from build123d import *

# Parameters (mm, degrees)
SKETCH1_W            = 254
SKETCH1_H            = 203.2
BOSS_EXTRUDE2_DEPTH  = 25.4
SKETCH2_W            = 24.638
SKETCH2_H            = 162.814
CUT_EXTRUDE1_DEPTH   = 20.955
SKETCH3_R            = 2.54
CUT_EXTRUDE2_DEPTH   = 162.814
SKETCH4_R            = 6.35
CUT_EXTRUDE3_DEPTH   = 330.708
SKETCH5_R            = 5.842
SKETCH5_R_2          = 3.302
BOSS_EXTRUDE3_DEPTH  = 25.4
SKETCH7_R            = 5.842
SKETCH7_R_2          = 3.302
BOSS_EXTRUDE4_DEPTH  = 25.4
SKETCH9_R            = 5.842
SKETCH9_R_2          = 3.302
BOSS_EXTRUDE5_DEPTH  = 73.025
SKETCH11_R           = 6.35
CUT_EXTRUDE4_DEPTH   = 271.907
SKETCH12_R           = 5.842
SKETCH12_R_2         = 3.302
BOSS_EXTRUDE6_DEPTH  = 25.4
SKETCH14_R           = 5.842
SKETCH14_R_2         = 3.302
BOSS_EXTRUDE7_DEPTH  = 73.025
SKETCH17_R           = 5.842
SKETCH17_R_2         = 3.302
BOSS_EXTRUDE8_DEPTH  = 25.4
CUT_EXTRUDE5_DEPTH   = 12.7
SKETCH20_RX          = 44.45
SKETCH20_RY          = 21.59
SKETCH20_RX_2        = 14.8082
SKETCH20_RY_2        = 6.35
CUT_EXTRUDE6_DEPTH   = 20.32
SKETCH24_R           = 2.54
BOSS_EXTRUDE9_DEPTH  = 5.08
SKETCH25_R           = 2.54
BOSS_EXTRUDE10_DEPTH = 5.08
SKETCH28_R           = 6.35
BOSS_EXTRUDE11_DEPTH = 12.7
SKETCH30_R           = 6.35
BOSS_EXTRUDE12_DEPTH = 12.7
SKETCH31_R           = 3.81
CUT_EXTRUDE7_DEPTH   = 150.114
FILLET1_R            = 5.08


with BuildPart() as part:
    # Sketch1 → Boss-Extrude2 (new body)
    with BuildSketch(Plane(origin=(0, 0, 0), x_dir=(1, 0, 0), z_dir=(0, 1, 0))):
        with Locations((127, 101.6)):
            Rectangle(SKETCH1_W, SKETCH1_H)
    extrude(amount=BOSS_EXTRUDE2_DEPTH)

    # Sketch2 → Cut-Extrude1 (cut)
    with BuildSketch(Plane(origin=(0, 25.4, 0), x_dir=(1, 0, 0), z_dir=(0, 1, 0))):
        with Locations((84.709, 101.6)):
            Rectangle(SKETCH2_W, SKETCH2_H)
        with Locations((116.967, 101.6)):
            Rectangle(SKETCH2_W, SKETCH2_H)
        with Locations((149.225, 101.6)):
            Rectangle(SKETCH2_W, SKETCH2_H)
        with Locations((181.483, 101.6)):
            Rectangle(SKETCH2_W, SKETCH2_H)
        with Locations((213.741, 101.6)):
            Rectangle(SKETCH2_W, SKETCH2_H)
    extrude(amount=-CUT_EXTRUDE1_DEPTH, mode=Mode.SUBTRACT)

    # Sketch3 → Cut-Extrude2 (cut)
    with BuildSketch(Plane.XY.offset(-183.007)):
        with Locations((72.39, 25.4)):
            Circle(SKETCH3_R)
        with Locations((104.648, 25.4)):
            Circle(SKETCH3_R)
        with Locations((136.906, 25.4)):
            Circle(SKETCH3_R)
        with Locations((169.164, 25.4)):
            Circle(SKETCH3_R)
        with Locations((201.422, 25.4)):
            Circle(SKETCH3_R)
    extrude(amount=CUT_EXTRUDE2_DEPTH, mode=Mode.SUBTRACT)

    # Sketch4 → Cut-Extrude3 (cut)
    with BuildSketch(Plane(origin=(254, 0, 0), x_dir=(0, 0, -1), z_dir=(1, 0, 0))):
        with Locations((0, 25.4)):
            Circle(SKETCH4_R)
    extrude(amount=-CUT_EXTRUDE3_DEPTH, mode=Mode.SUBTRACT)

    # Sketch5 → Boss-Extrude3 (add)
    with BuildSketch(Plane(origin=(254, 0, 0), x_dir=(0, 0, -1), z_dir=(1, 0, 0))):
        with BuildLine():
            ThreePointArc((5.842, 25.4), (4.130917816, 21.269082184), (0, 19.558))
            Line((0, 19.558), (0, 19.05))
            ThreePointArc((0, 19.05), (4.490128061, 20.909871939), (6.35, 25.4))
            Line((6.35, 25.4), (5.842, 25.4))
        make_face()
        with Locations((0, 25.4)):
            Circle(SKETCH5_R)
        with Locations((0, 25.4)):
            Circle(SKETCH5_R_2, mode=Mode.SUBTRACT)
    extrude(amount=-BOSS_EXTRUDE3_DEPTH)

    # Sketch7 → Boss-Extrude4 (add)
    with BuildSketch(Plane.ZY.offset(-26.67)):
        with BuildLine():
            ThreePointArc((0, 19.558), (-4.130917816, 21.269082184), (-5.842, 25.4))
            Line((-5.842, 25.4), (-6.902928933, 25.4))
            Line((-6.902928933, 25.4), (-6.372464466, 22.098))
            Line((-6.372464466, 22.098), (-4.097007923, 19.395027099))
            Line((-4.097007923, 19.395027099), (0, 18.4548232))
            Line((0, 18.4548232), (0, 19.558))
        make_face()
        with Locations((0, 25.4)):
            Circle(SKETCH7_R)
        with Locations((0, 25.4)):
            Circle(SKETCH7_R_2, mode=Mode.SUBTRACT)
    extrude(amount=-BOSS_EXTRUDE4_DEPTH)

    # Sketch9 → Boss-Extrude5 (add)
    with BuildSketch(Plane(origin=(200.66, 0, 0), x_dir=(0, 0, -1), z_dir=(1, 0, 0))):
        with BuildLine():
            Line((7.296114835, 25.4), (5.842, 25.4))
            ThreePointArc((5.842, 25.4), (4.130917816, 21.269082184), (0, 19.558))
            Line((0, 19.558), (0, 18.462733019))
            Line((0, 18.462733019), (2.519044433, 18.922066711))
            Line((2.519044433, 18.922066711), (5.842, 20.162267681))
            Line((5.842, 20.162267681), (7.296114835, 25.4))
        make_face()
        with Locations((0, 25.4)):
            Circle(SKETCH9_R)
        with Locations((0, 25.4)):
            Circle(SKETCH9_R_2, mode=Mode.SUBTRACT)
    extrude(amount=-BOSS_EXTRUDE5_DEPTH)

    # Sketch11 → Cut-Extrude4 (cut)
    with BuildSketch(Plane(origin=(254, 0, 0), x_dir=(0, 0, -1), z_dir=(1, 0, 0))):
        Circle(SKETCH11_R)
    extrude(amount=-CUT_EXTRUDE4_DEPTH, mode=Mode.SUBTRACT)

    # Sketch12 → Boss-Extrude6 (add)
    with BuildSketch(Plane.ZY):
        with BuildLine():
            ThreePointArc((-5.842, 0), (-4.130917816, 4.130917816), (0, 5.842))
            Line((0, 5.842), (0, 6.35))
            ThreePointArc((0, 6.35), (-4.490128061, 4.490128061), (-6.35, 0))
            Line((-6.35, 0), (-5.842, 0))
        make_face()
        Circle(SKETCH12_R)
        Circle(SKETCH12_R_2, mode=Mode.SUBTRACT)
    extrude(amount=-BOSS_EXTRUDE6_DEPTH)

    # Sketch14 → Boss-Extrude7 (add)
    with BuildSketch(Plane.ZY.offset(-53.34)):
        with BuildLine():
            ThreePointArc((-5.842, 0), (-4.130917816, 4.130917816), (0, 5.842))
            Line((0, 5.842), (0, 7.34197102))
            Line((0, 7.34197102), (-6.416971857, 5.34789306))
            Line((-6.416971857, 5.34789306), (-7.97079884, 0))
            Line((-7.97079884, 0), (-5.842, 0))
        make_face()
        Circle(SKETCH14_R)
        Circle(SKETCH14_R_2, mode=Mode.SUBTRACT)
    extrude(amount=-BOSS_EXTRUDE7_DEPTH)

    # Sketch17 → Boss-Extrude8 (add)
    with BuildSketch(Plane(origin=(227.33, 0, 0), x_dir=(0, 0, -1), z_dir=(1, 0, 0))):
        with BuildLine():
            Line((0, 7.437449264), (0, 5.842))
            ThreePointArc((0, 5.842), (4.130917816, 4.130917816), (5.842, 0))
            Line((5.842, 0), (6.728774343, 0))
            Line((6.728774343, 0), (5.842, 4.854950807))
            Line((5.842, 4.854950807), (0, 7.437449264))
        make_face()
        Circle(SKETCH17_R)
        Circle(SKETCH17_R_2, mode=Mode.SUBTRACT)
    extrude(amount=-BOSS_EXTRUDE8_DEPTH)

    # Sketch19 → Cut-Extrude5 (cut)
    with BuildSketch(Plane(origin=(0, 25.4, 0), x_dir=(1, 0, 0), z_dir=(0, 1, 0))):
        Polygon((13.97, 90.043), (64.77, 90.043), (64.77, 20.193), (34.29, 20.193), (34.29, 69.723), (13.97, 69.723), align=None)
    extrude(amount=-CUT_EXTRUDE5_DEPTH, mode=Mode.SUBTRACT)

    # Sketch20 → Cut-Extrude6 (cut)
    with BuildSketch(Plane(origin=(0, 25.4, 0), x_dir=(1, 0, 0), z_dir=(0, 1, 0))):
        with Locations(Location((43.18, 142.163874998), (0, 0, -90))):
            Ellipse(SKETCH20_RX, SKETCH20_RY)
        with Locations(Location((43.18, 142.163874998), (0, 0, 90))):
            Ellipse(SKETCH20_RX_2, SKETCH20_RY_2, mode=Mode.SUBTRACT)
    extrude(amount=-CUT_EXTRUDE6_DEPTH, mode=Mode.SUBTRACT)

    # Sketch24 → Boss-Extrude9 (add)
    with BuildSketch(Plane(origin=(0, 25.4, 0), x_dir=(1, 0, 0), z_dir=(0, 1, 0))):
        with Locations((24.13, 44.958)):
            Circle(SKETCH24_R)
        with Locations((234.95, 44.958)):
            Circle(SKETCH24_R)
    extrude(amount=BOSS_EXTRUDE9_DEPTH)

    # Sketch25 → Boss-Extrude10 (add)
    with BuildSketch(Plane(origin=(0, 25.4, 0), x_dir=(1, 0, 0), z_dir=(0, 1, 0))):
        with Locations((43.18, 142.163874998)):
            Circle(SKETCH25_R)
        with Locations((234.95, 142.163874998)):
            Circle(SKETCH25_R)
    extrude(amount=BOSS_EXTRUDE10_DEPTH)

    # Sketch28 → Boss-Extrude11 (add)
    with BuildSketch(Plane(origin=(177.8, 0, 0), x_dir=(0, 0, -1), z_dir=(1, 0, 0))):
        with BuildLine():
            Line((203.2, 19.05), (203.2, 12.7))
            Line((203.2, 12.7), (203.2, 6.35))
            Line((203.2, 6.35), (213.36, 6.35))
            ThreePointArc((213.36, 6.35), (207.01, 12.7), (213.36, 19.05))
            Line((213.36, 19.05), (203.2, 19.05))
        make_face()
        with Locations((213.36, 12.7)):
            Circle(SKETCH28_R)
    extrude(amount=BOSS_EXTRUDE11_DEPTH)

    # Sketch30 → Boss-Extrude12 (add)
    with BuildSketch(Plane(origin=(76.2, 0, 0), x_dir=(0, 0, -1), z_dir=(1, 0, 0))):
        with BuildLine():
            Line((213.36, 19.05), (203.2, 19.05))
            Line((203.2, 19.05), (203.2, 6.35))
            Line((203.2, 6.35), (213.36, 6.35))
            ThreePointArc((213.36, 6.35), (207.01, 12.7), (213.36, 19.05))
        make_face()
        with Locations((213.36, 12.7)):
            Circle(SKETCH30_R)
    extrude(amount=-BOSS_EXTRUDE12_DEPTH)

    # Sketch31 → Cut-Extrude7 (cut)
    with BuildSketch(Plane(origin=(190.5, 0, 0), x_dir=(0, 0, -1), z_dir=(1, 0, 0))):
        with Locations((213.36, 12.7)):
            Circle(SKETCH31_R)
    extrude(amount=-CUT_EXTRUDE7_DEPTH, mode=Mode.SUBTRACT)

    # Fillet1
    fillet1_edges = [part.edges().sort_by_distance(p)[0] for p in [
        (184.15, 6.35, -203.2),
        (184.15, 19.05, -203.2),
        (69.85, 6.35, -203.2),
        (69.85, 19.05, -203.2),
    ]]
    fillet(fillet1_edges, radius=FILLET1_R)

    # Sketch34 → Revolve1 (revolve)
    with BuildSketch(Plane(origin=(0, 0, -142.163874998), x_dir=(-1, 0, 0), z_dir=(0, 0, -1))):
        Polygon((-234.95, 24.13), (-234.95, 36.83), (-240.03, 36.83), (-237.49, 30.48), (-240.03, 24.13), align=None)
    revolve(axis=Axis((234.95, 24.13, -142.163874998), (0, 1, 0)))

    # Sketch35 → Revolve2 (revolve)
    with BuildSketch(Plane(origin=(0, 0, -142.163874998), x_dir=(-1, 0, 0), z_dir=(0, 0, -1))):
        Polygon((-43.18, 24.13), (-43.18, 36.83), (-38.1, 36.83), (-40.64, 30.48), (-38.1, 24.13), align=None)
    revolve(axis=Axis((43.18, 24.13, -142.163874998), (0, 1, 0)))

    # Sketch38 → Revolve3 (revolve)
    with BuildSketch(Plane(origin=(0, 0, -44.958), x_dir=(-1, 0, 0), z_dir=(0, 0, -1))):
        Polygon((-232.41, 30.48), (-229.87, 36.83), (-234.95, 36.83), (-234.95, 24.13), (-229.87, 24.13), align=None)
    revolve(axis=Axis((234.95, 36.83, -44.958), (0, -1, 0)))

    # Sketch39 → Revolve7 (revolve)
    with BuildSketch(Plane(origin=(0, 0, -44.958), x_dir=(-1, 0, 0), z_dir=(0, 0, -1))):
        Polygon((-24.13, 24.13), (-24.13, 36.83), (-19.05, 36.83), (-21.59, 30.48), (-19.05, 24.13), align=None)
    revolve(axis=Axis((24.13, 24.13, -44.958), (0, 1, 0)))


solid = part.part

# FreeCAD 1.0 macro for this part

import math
import FreeCAD as App
import Part
import Sketcher

V = App.Vector
Q = App.Units.Quantity


def edges_at(feature, points):
    """Names of the edges that pass closest to the given points."""
    edges = feature.Shape.Edges
    near = lambda p: min(range(len(edges)), key=lambda i: edges[i].distToShape(Part.Vertex(*p))[0])
    return sorted({f"Edge{near(p) + 1}" for p in points})

doc = App.newDocument("Part")
body = doc.addObject("PartDesign::Body", "Body")

# Sketch on XZ plane
sketch1 = doc.addObject("Sketcher::SketchObject", "Sketch")
body.addObject(sketch1)
sketch1.AttachmentSupport = (doc.XZ_Plane, [""])
sketch1.MapMode = "FlatFace"
sketch1.addGeometry([
    Part.LineSegment(V(0, -203, 0), V(0, 0, 0)),
    Part.LineSegment(V(0, 0, 0), V(254, 0, 0)),
    Part.LineSegment(V(254, 0, 0), V(254, -203, 0)),
    Part.LineSegment(V(254, -203, 0), V(0, -203, 0)),
], False)
sketch1.addConstraint([
    Sketcher.Constraint("Coincident", 0, 2, 1, 1),
    Sketcher.Constraint("Coincident", 1, 2, 2, 1),
    Sketcher.Constraint("Coincident", 2, 2, 3, 1),
    Sketcher.Constraint("Coincident", 3, 2, 0, 1),
    Sketcher.Constraint("Vertical", 0),
    Sketcher.Constraint("Horizontal", 1),
    Sketcher.Constraint("Vertical", 2),
    Sketcher.Constraint("Horizontal", 3),
    Sketcher.Constraint("Coincident", 0, 2, -1, 1),
    Sketcher.Constraint("DistanceX", 1, 1, 1, 2, Q("10 in")),
    Sketcher.Constraint("DistanceY", 0, 1, 0, 2, Q("8 in")),
])
pad1 = doc.addObject("PartDesign::Pad", "Pad")
body.addObject(pad1)
pad1.Profile = sketch1
pad1.Length = Q("1 in")
pad1.Reversed = True

# Sketch on XZ plane
sketch2 = doc.addObject("Sketcher::SketchObject", "Sketch001")
body.addObject(sketch2)
sketch2.AttachmentSupport = (doc.XZ_Plane, [""])
sketch2.MapMode = "FlatFace"
sketch2.AttachmentOffset = App.Placement(V(0, 0, -1 * 25.4), App.Rotation())
sketch2.addGeometry([
    Part.LineSegment(V(72, -183, 0), V(72, -20, 0)),  # 0
    Part.LineSegment(V(72, -20, 0), V(97, -20, 0)),  # 1
    Part.LineSegment(V(97, -20, 0), V(97, -183, 0)),  # 2
    Part.LineSegment(V(97, -183, 0), V(72, -183, 0)),  # 3
    Part.LineSegment(V(105, -183, 0), V(105, -20, 0)),  # 4
    Part.LineSegment(V(105, -20, 0), V(129, -20, 0)),  # 5
    Part.LineSegment(V(129, -20, 0), V(129, -183, 0)),  # 6
    Part.LineSegment(V(129, -183, 0), V(105, -183, 0)),  # 7
    Part.LineSegment(V(137, -183, 0), V(137, -20, 0)),  # 8
    Part.LineSegment(V(137, -20, 0), V(162, -20, 0)),  # 9
    Part.LineSegment(V(162, -20, 0), V(162, -183, 0)),  # 10
    Part.LineSegment(V(162, -183, 0), V(137, -183, 0)),  # 11
    Part.LineSegment(V(169, -183, 0), V(169, -20, 0)),  # 12
    Part.LineSegment(V(169, -20, 0), V(194, -20, 0)),  # 13
    Part.LineSegment(V(194, -20, 0), V(194, -183, 0)),  # 14
    Part.LineSegment(V(194, -183, 0), V(169, -183, 0)),  # 15
    Part.LineSegment(V(201, -183, 0), V(201, -20, 0)),  # 16
    Part.LineSegment(V(201, -20, 0), V(226, -20, 0)),  # 17
    Part.LineSegment(V(226, -20, 0), V(226, -183, 0)),  # 18
    Part.LineSegment(V(226, -183, 0), V(201, -183, 0)),  # 19
], False)
sketch2.addConstraint([
    Sketcher.Constraint("Coincident", 0, 2, 1, 1),
    Sketcher.Constraint("Coincident", 1, 2, 2, 1),
    Sketcher.Constraint("Coincident", 2, 2, 3, 1),
    Sketcher.Constraint("Coincident", 3, 2, 0, 1),
    Sketcher.Constraint("Coincident", 4, 2, 5, 1),
    Sketcher.Constraint("Coincident", 5, 2, 6, 1),
    Sketcher.Constraint("Coincident", 6, 2, 7, 1),
    Sketcher.Constraint("Coincident", 7, 2, 4, 1),
    Sketcher.Constraint("Coincident", 8, 2, 9, 1),
    Sketcher.Constraint("Coincident", 9, 2, 10, 1),
    Sketcher.Constraint("Coincident", 10, 2, 11, 1),
    Sketcher.Constraint("Coincident", 11, 2, 8, 1),
    Sketcher.Constraint("Coincident", 12, 2, 13, 1),
    Sketcher.Constraint("Coincident", 13, 2, 14, 1),
    Sketcher.Constraint("Coincident", 14, 2, 15, 1),
    Sketcher.Constraint("Coincident", 15, 2, 12, 1),
    Sketcher.Constraint("Coincident", 16, 2, 17, 1),
    Sketcher.Constraint("Coincident", 17, 2, 18, 1),
    Sketcher.Constraint("Coincident", 18, 2, 19, 1),
    Sketcher.Constraint("Coincident", 19, 2, 16, 1),
    Sketcher.Constraint("Vertical", 0),
    Sketcher.Constraint("Horizontal", 1),
    Sketcher.Constraint("Vertical", 2),
    Sketcher.Constraint("Horizontal", 3),
    Sketcher.Constraint("Vertical", 4),
    Sketcher.Constraint("Horizontal", 5),
    Sketcher.Constraint("Vertical", 6),
    Sketcher.Constraint("Horizontal", 7),
    Sketcher.Constraint("Vertical", 8),
    Sketcher.Constraint("Horizontal", 9),
    Sketcher.Constraint("Vertical", 10),
    Sketcher.Constraint("Horizontal", 11),
    Sketcher.Constraint("Vertical", 12),
    Sketcher.Constraint("Horizontal", 13),
    Sketcher.Constraint("Vertical", 14),
    Sketcher.Constraint("Horizontal", 15),
    Sketcher.Constraint("Vertical", 16),
    Sketcher.Constraint("Horizontal", 17),
    Sketcher.Constraint("Vertical", 18),
    Sketcher.Constraint("Horizontal", 19),
    Sketcher.Constraint("Horizontal", 1, 2, 4, 2),
    Sketcher.Constraint("Horizontal", 3, 2, 6, 2),
    Sketcher.Constraint("Horizontal", 5, 2, 8, 2),
    Sketcher.Constraint("Horizontal", 7, 2, 10, 2),
    Sketcher.Constraint("Horizontal", 9, 2, 12, 2),
    Sketcher.Constraint("Horizontal", 11, 2, 14, 2),
    Sketcher.Constraint("Horizontal", 13, 2, 16, 2),
    Sketcher.Constraint("Horizontal", 15, 2, 18, 2),
    Sketcher.Constraint("Equal", 3, 5),
    Sketcher.Constraint("Equal", 7, 9),
    Sketcher.Constraint("Equal", 11, 13),
    Sketcher.Constraint("Equal", 15, 17),
    Sketcher.Constraint("DistanceX", 1, 1, 1, 2, Q("0.97 in")),
    Sketcher.Constraint("DistanceY", 0, 1, 0, 2, Q("6.41 in")),
    Sketcher.Constraint("DistanceX", -1, 1, 17, 2, Q("8.9 in")),
    Sketcher.Constraint("DistanceX", 1, 2, 4, 2, Q("0.3 in")),
    Sketcher.Constraint("DistanceX", 5, 2, 8, 2, Q("0.3 in")),
    Sketcher.Constraint("DistanceX", 9, 2, 12, 2, Q("0.3 in")),
    Sketcher.Constraint("DistanceX", 13, 2, 16, 2, Q("0.3 in")),
    Sketcher.Constraint("DistanceY", 0, 2, -1, 1, Q("0.795 in")),
])
pocket1 = doc.addObject("PartDesign::Pocket", "Pocket")
body.addObject(pocket1)
pocket1.Profile = sketch2
pocket1.Length = Q("0.825 in")
pocket1.Reversed = True

# Sketch on XY plane
sketch3 = doc.addObject("Sketcher::SketchObject", "Sketch002")
body.addObject(sketch3)
sketch3.AttachmentSupport = (doc.XY_Plane, [""])
sketch3.MapMode = "FlatFace"
sketch3.AttachmentOffset = App.Placement(V(0, 0, -7.205 * 25.4), App.Rotation())
sketch3.addGeometry([
    Part.Circle(V(72.4, 25.4, 0), V(0, 0, 1), 2.5),  # 0
    Part.Circle(V(104.6, 25.4, 0), V(0, 0, 1), 2.5),  # 1
    Part.Circle(V(136.9, 25.4, 0), V(0, 0, 1), 2.5),  # 2
    Part.Circle(V(169.2, 25.4, 0), V(0, 0, 1), 2.5),  # 3
    Part.Circle(V(201.4, 25.4, 0), V(0, 0, 1), 2.5),  # 4
], False)
sketch3.addConstraint([
    Sketcher.Constraint("Equal", 0, 1),
    Sketcher.Constraint("Equal", 1, 2),
    Sketcher.Constraint("Equal", 2, 3),
    Sketcher.Constraint("Equal", 3, 4),
    Sketcher.Constraint("Horizontal", 0, 3, 1, 3),
    Sketcher.Constraint("Horizontal", 1, 3, 2, 3),
    Sketcher.Constraint("Horizontal", 2, 3, 3, 3),
    Sketcher.Constraint("Horizontal", 3, 3, 4, 3),
    Sketcher.Constraint("Diameter", 0, Q("0.2 in")),
    Sketcher.Constraint("DistanceY", -1, 1, 0, 3, Q("1 in")),
    Sketcher.Constraint("DistanceX", -1, 1, 0, 3, Q("2.85 in")),
    Sketcher.Constraint("DistanceX", -1, 1, 1, 3, Q("4.12 in")),
    Sketcher.Constraint("DistanceX", -1, 1, 2, 3, Q("5.39 in")),
    Sketcher.Constraint("DistanceX", -1, 1, 3, 3, Q("6.66 in")),
    Sketcher.Constraint("DistanceX", -1, 1, 4, 3, Q("7.93 in")),
])
pocket2 = doc.addObject("PartDesign::Pocket", "Pocket001")
body.addObject(pocket2)
pocket2.Profile = sketch3
pocket2.Length = Q("6.41 in")
pocket2.Reversed = True

# Sketch on YZ plane
sketch4 = doc.addObject("Sketcher::SketchObject", "Sketch003")
body.addObject(sketch4)
sketch4.AttachmentSupport = (doc.YZ_Plane, [""])
sketch4.MapMode = "FlatFace"
sketch4.AttachmentOffset = App.Placement(V(0, 0, 10 * 25.4), App.Rotation())
sketch4.addGeometry(Part.Circle(V(25, 0, 0), V(0, 0, 1), 6), False)
sketch4.addConstraint([
    Sketcher.Constraint("PointOnObject", 0, 3, -1),
    Sketcher.Constraint("Diameter", 0, Q("0.5 in")),
    Sketcher.Constraint("DistanceX", -1, 1, 0, 3, Q("1 in")),
])
pocket3 = doc.addObject("PartDesign::Pocket", "Pocket002")
body.addObject(pocket3)
pocket3.Profile = sketch4
pocket3.Length = Q("13.02 in")

# Sketch on YZ plane
sketch5 = doc.addObject("Sketcher::SketchObject", "Sketch004")
body.addObject(sketch5)
sketch5.AttachmentSupport = (doc.YZ_Plane, [""])
sketch5.MapMode = "FlatFace"
sketch5.AttachmentOffset = App.Placement(V(0, 0, 10 * 25.4), App.Rotation())
sketch5.addGeometry([
    Part.LineSegment(V(19.6, 0, 0), V(19.1, 0, 0)),  # 0
    Part.ArcOfCircle(Part.Circle(V(25.4, 0, 0), V(0, 0, 1), 6.3), math.radians(180), math.radians(270)),  # 1
    Part.LineSegment(V(25.4, -6.3, 0), V(25.4, -5.8, 0)),  # 2
    Part.ArcOfCircle(Part.Circle(V(25.4, 0, 0), V(0, 0, 1), 5.8), math.radians(-90), math.radians(180)),  # 3
    Part.Circle(V(25.4, 0, 0), V(0, 0, 1), 3.3),  # 4
], False)
sketch5.addConstraint([
    Sketcher.Constraint("Coincident", 0, 2, 1, 1),
    Sketcher.Constraint("Coincident", 1, 2, 2, 1),
    Sketcher.Constraint("Coincident", 2, 2, 3, 1),
    Sketcher.Constraint("Coincident", 3, 2, 0, 1),
    Sketcher.Constraint("Horizontal", 0),
    Sketcher.Constraint("Vertical", 2),
    Sketcher.Constraint("Coincident", 3, 3, 1, 3),
    Sketcher.Constraint("Coincident", 4, 3, 1, 3),
    Sketcher.Constraint("PointOnObject", 1, 3, -1),
    Sketcher.Constraint("PointOnObject", 0, 2, -1),
    Sketcher.Constraint("Vertical", 4, 3, 1, 2),
    Sketcher.Constraint("Diameter", 4, Q("0.26 in")),
    Sketcher.Constraint("Radius", 1, Q("0.25 in")),
    Sketcher.Constraint("Radius", 3, Q("0.23 in")),
    Sketcher.Constraint("DistanceX", -1, 1, 1, 3, Q("1 in")),
])
pad2 = doc.addObject("PartDesign::Pad", "Pad001")
body.addObject(pad2)
pad2.Profile = sketch5
pad2.Length = Q("1 in")
pad2.Reversed = True

# Sketch on YZ plane
sketch6 = doc.addObject("Sketcher::SketchObject", "Sketch005")
body.addObject(sketch6)
sketch6.AttachmentSupport = (doc.YZ_Plane, [""])
sketch6.MapMode = "FlatFace"
sketch6.AttachmentOffset = App.Placement(V(0, 0, 1.05 * 25.4), App.Rotation())
sketch6.addGeometry([
    Part.LineSegment(V(25.4, -5.8, 0), V(25.4, -6.9, 0)),  # 0
    Part.LineSegment(V(25.4, -6.9, 0), V(22.1, -6.4, 0)),  # 1
    Part.LineSegment(V(22.1, -6.4, 0), V(19.4, -4.1, 0)),  # 2
    Part.LineSegment(V(19.4, -4.1, 0), V(18.5, 0, 0)),  # 3
    Part.LineSegment(V(18.5, 0, 0), V(19.6, 0, 0)),  # 4
    Part.ArcOfCircle(Part.Circle(V(25.4, 0, 0), V(0, 0, 1), 5.8), math.radians(-90), math.radians(180)),  # 5
    Part.Circle(V(25.4, 0, 0), V(0, 0, 1), 3.3),  # 6
], False)
sketch6.addConstraint([
    Sketcher.Constraint("Coincident", 0, 2, 1, 1),
    Sketcher.Constraint("Coincident", 1, 2, 2, 1),
    Sketcher.Constraint("Coincident", 2, 2, 3, 1),
    Sketcher.Constraint("Coincident", 3, 2, 4, 1),
    Sketcher.Constraint("Coincident", 4, 2, 5, 2),
    Sketcher.Constraint("Coincident", 5, 1, 0, 1),
    Sketcher.Constraint("Vertical", 0),
    Sketcher.Constraint("Horizontal", 4),
    Sketcher.Constraint("Coincident", 6, 3, 5, 3),
    Sketcher.Constraint("PointOnObject", 5, 3, -1),
    Sketcher.Constraint("PointOnObject", 3, 2, -1),
    Sketcher.Constraint("Vertical", 6, 3, 0, 2),
    Sketcher.Constraint("Diameter", 6, Q("0.26 in")),
    Sketcher.Constraint("Radius", 5, Q("0.23 in")),
    Sketcher.Constraint("DistanceX", -1, 1, 5, 3, Q("1 in")),
    Sketcher.Constraint("DistanceX", 4, 2, 1, 2, Q("0.1 in")),
    Sketcher.Constraint("DistanceY", 0, 2, 0, 1, Q("1.060929 mm")),
    Sketcher.Constraint("DistanceX", 4, 1, 4, 2, Q("1.103177 mm")),
    Sketcher.Constraint("DistanceY", 0, 2, 2, 2, Q("2.805921 mm")),
    Sketcher.Constraint("Distance", 1, Q("3.344338 mm")),
    Sketcher.Constraint("Distance", 2, Q("3.533237 mm")),
])
pad3 = doc.addObject("PartDesign::Pad", "Pad002")
body.addObject(pad3)
pad3.Profile = sketch6
pad3.Length = Q("1 in")

# Sketch on YZ plane
sketch7 = doc.addObject("Sketcher::SketchObject", "Sketch006")
body.addObject(sketch7)
sketch7.AttachmentSupport = (doc.YZ_Plane, [""])
sketch7.MapMode = "FlatFace"
sketch7.AttachmentOffset = App.Placement(V(0, 0, 7.9 * 25.4), App.Rotation())
sketch7.addGeometry([
    Part.LineSegment(V(25.4, -7.3, 0), V(25.4, -5.8, 0)),  # 0
    Part.ArcOfCircle(Part.Circle(V(25.4, 0, 0), V(0, 0, 1), 5.8), math.radians(-90), math.radians(180)),  # 1
    Part.LineSegment(V(19.6, 0, 0), V(18.5, 0, 0)),  # 2
    Part.LineSegment(V(18.5, 0, 0), V(18.9, -2.5, 0)),  # 3
    Part.LineSegment(V(18.9, -2.5, 0), V(20.2, -5.8, 0)),  # 4
    Part.LineSegment(V(20.2, -5.8, 0), V(25.4, -7.3, 0)),  # 5
    Part.Circle(V(25.4, 0, 0), V(0, 0, 1), 3.3),  # 6
], False)
sketch7.addConstraint([
    Sketcher.Constraint("Coincident", 0, 2, 1, 1),
    Sketcher.Constraint("Coincident", 1, 2, 2, 1),
    Sketcher.Constraint("Coincident", 2, 2, 3, 1),
    Sketcher.Constraint("Coincident", 3, 2, 4, 1),
    Sketcher.Constraint("Coincident", 4, 2, 5, 1),
    Sketcher.Constraint("Coincident", 5, 2, 0, 1),
    Sketcher.Constraint("Vertical", 0),
    Sketcher.Constraint("Horizontal", 2),
    Sketcher.Constraint("Coincident", 6, 3, 1, 3),
    Sketcher.Constraint("PointOnObject", 1, 3, -1),
    Sketcher.Constraint("PointOnObject", 1, 2, -1),
    Sketcher.Constraint("Horizontal", 0, 2, 4, 2),
    Sketcher.Constraint("Vertical", 6, 3, 0, 2),
    Sketcher.Constraint("Diameter", 6, Q("0.26 in")),
    Sketcher.Constraint("Radius", 1, Q("0.23 in")),
    Sketcher.Constraint("DistanceX", -1, 1, 1, 3, Q("1 in")),
    Sketcher.Constraint("DistanceX", 3, 2, 4, 2, Q("1.240201 mm")),
    Sketcher.Constraint("Distance", 3, Q("2.56058 mm")),
    Sketcher.Constraint("Distance", 4, Q("3.546848 mm")),
    Sketcher.Constraint("DistanceX", 2, 2, 2, 1, Q("1.095267 mm")),
    Sketcher.Constraint("DistanceY", 0, 1, 0, 2, Q("1.454115 mm")),
])
pad4 = doc.addObject("PartDesign::Pad", "Pad003")
body.addObject(pad4)
pad4.Profile = sketch7
pad4.Length = Q("2.875 in")
pad4.Reversed = True

# Sketch on YZ plane
sketch8 = doc.addObject("Sketcher::SketchObject", "Sketch007")
body.addObject(sketch8)
sketch8.AttachmentSupport = (doc.YZ_Plane, [""])
sketch8.MapMode = "FlatFace"
sketch8.AttachmentOffset = App.Placement(V(0, 0, 10 * 25.4), App.Rotation())
sketch8.addGeometry(Part.Circle(V(0, 0, 0), V(0, 0, 1), 6), False)
sketch8.addConstraint([
    Sketcher.Constraint("Coincident", 0, 3, -1, 1),
    Sketcher.Constraint("Diameter", 0, Q("0.5 in")),
])
pocket4 = doc.addObject("PartDesign::Pocket", "Pocket003")
body.addObject(pocket4)
pocket4.Profile = sketch8
pocket4.Length = Q("10.705 in")

# Sketch on YZ plane
sketch9 = doc.addObject("Sketcher::SketchObject", "Sketch008")
body.addObject(sketch9)
sketch9.AttachmentSupport = (doc.YZ_Plane, [""])
sketch9.MapMode = "FlatFace"
sketch9.addGeometry([
    Part.LineSegment(V(5.8, 0, 0), V(6.3, 0, 0)),  # 0
    Part.ArcOfCircle(Part.Circle(V(0, 0, 0), V(0, 0, 1), 6.3), math.radians(-90), math.radians(0)),  # 1
    Part.LineSegment(V(0, -6.3, 0), V(0, -5.8, 0)),  # 2
    Part.ArcOfCircle(Part.Circle(V(0, 0, 0), V(0, 0, 1), 5.8), math.radians(0), math.radians(270)),  # 3
    Part.Circle(V(0, 0, 0), V(0, 0, 1), 3.3),  # 4
], False)
sketch9.addConstraint([
    Sketcher.Constraint("Coincident", 0, 2, 1, 2),
    Sketcher.Constraint("Coincident", 1, 1, 2, 1),
    Sketcher.Constraint("Coincident", 2, 2, 3, 2),
    Sketcher.Constraint("Coincident", 3, 1, 0, 1),
    Sketcher.Constraint("Horizontal", 0),
    Sketcher.Constraint("Vertical", 2),
    Sketcher.Constraint("Coincident", 1, 3, -1, 1),
    Sketcher.Constraint("Coincident", 3, 3, -1, 1),
    Sketcher.Constraint("Coincident", 4, 3, -1, 1),
    Sketcher.Constraint("PointOnObject", 0, 2, -1),
    Sketcher.Constraint("PointOnObject", 1, 1, -2),
    Sketcher.Constraint("Diameter", 4, Q("0.26 in")),
    Sketcher.Constraint("Radius", 1, Q("0.25 in")),
    Sketcher.Constraint("Radius", 3, Q("0.23 in")),
])
pad5 = doc.addObject("PartDesign::Pad", "Pad004")
body.addObject(pad5)
pad5.Profile = sketch9
pad5.Length = Q("1 in")

# Sketch on YZ plane
sketch10 = doc.addObject("Sketcher::SketchObject", "Sketch009")
body.addObject(sketch10)
sketch10.AttachmentSupport = (doc.YZ_Plane, [""])
sketch10.MapMode = "FlatFace"
sketch10.AttachmentOffset = App.Placement(V(0, 0, 2.1 * 25.4), App.Rotation())
sketch10.addGeometry([
    Part.LineSegment(V(5.8, 0, 0), V(7.3, 0, 0)),  # 0
    Part.LineSegment(V(7.3, 0, 0), V(5.3, -6.4, 0)),  # 1
    Part.LineSegment(V(5.3, -6.4, 0), V(0, -8, 0)),  # 2
    Part.LineSegment(V(0, -8, 0), V(0, -5.8, 0)),  # 3
    Part.ArcOfCircle(Part.Circle(V(0, 0, 0), V(0, 0, 1), 5.8), math.radians(0), math.radians(270)),  # 4
    Part.Circle(V(0, 0, 0), V(0, 0, 1), 3.3),  # 5
], False)
sketch10.addConstraint([
    Sketcher.Constraint("Coincident", 0, 2, 1, 1),
    Sketcher.Constraint("Coincident", 1, 2, 2, 1),
    Sketcher.Constraint("Coincident", 2, 2, 3, 1),
    Sketcher.Constraint("Coincident", 3, 2, 4, 2),
    Sketcher.Constraint("Coincident", 4, 1, 0, 1),
    Sketcher.Constraint("Horizontal", 0),
    Sketcher.Constraint("Vertical", 3),
    Sketcher.Constraint("Coincident", 4, 3, -1, 1),
    Sketcher.Constraint("Coincident", 5, 3, -1, 1),
    Sketcher.Constraint("PointOnObject", 0, 2, -1),
    Sketcher.Constraint("PointOnObject", 2, 2, -2),
    Sketcher.Constraint("Diameter", 5, Q("0.26 in")),
    Sketcher.Constraint("Radius", 4, Q("0.23 in")),
    Sketcher.Constraint("DistanceY", 3, 1, 3, 2, Q("2.128799 mm")),
    Sketcher.Constraint("DistanceX", 0, 1, 0, 2, Q("1.499971 mm")),
    Sketcher.Constraint("Distance", 2, Q("5.569052 mm")),
    Sketcher.Constraint("DistanceY", 1, 2, -1, 1, Q("6.416972 mm")),
])
pad6 = doc.addObject("PartDesign::Pad", "Pad005")
body.addObject(pad6)
pad6.Profile = sketch10
pad6.Length = Q("2.875 in")

# Sketch on YZ plane
sketch11 = doc.addObject("Sketcher::SketchObject", "Sketch010")
body.addObject(sketch11)
sketch11.AttachmentSupport = (doc.YZ_Plane, [""])
sketch11.MapMode = "FlatFace"
sketch11.AttachmentOffset = App.Placement(V(0, 0, 8.95 * 25.4), App.Rotation())
sketch11.addGeometry([
    Part.LineSegment(V(7.4, 0, 0), V(5.8, 0, 0)),  # 0
    Part.ArcOfCircle(Part.Circle(V(0, 0, 0), V(0, 0, 1), 5.8), math.radians(0), math.radians(270)),  # 1
    Part.LineSegment(V(0, -5.8, 0), V(0, -6.7, 0)),  # 2
    Part.LineSegment(V(0, -6.7, 0), V(4.9, -5.8, 0)),  # 3
    Part.LineSegment(V(4.9, -5.8, 0), V(7.4, 0, 0)),  # 4
    Part.Circle(V(0, 0, 0), V(0, 0, 1), 3.3),  # 5
], False)
sketch11.addConstraint([
    Sketcher.Constraint("Coincident", 0, 2, 1, 1),
    Sketcher.Constraint("Coincident", 1, 2, 2, 1),
    Sketcher.Constraint("Coincident", 2, 2, 3, 1),
    Sketcher.Constraint("Coincident", 3, 2, 4, 1),
    Sketcher.Constraint("Coincident", 4, 2, 0, 1),
    Sketcher.Constraint("Horizontal", 0),
    Sketcher.Constraint("Vertical", 2),
    Sketcher.Constraint("Coincident", 1, 3, -1, 1),
    Sketcher.Constraint("Coincident", 5, 3, -1, 1),
    Sketcher.Constraint("PointOnObject", 0, 2, -1),
    Sketcher.Constraint("PointOnObject", 1, 2, -2),
    Sketcher.Constraint("Horizontal", 1, 2, 3, 2),
    Sketcher.Constraint("Diameter", 5, Q("0.26 in")),
    Sketcher.Constraint("Radius", 1, Q("0.23 in")),
    Sketcher.Constraint("DistanceX", 0, 2, 0, 1, Q("1.595449 mm")),
    Sketcher.Constraint("DistanceX", 3, 2, 4, 2, Q("2.582498 mm")),
    Sketcher.Constraint("DistanceY", 2, 2, 2, 1, Q("0.886774 mm")),
])
pad7 = doc.addObject("PartDesign::Pad", "Pad006")
body.addObject(pad7)
pad7.Profile = sketch11
pad7.Length = Q("1 in")
pad7.Reversed = True

# Sketch on XZ plane
sketch12 = doc.addObject("Sketcher::SketchObject", "Sketch011")
body.addObject(sketch12)
sketch12.AttachmentSupport = (doc.XZ_Plane, [""])
sketch12.MapMode = "FlatFace"
sketch12.AttachmentOffset = App.Placement(V(0, 0, -1 * 25.4), App.Rotation())
sketch12.addGeometry([
    Part.LineSegment(V(65, -90, 0), V(14, -90, 0)),  # 0
    Part.LineSegment(V(14, -90, 0), V(14, -70, 0)),  # 1
    Part.LineSegment(V(14, -70, 0), V(34, -70, 0)),  # 2
    Part.LineSegment(V(34, -70, 0), V(34, -20, 0)),  # 3
    Part.LineSegment(V(34, -20, 0), V(65, -20, 0)),  # 4
    Part.LineSegment(V(65, -20, 0), V(65, -90, 0)),  # 5
], False)
sketch12.addConstraint([
    Sketcher.Constraint("Coincident", 0, 2, 1, 1),
    Sketcher.Constraint("Coincident", 1, 2, 2, 1),
    Sketcher.Constraint("Coincident", 2, 2, 3, 1),
    Sketcher.Constraint("Coincident", 3, 2, 4, 1),
    Sketcher.Constraint("Coincident", 4, 2, 5, 1),
    Sketcher.Constraint("Coincident", 5, 2, 0, 1),
    Sketcher.Constraint("Horizontal", 0),
    Sketcher.Constraint("Vertical", 1),
    Sketcher.Constraint("Horizontal", 2),
    Sketcher.Constraint("Vertical", 3),
    Sketcher.Constraint("Horizontal", 4),
    Sketcher.Constraint("Vertical", 5),
    Sketcher.Constraint("Equal", 2, 1),
    Sketcher.Constraint("DistanceX", 0, 2, 0, 1, Q("2 in")),
    Sketcher.Constraint("DistanceX", 2, 1, 2, 2, Q("0.8 in")),
    Sketcher.Constraint("DistanceY", 3, 1, 3, 2, Q("1.95 in")),
    Sketcher.Constraint("DistanceX", -1, 1, 0, 2, Q("0.55 in")),
    Sketcher.Constraint("DistanceY", 0, 2, -1, 1, Q("3.545 in")),
])
pocket5 = doc.addObject("PartDesign::Pocket", "Pocket004")
body.addObject(pocket5)
pocket5.Profile = sketch12
pocket5.Length = Q("0.5 in")
pocket5.Reversed = True

# Sketch on XZ plane
sketch13 = doc.addObject("Sketcher::SketchObject", "Sketch012")
body.addObject(sketch13)
sketch13.AttachmentSupport = (doc.XZ_Plane, [""])
sketch13.MapMode = "FlatFace"
sketch13.AttachmentOffset = App.Placement(V(0, 0, -1 * 25.4), App.Rotation())
sketch13.addGeometry([
    Part.Ellipse(V(43.18, -97.713875, 0), V(21.59, -142.163875, 0), V(43.18, -142.163875, 0)),
    Part.Ellipse(V(43.18, -156.972075, 0), V(49.53, -142.163875, 0), V(43.18, -142.163875, 0)),
], False)
sketch13.addConstraint([
    Sketcher.Constraint("Block", 0),
    Sketcher.Constraint("Block", 1),
])
pocket6 = doc.addObject("PartDesign::Pocket", "Pocket005")
body.addObject(pocket6)
pocket6.Profile = sketch13
pocket6.Length = Q("0.8 in")
pocket6.Reversed = True

# Sketch on XZ plane
sketch14 = doc.addObject("Sketcher::SketchObject", "Sketch013")
body.addObject(sketch14)
sketch14.AttachmentSupport = (doc.XZ_Plane, [""])
sketch14.MapMode = "FlatFace"
sketch14.AttachmentOffset = App.Placement(V(0, 0, -1 * 25.4), App.Rotation())
sketch14.addGeometry([
    Part.Circle(V(24.1, -45, 0), V(0, 0, 1), 2.5),
    Part.Circle(V(234.9, -45, 0), V(0, 0, 1), 2.5),
], False)
sketch14.addConstraint([
    Sketcher.Constraint("Equal", 0, 1),
    Sketcher.Constraint("Horizontal", 0, 3, 1, 3),
    Sketcher.Constraint("Diameter", 0, Q("0.2 in")),
    Sketcher.Constraint("DistanceX", 0, 3, 1, 3, Q("8.3 in")),
    Sketcher.Constraint("DistanceX", -1, 1, 0, 3, Q("0.95 in")),
    Sketcher.Constraint("DistanceY", 0, 3, -1, 1, Q("1.77 in")),
])
pad8 = doc.addObject("PartDesign::Pad", "Pad007")
body.addObject(pad8)
pad8.Profile = sketch14
pad8.Length = Q("0.2 in")
pad8.Reversed = True

# Sketch on XZ plane
sketch15 = doc.addObject("Sketcher::SketchObject", "Sketch014")
body.addObject(sketch15)
sketch15.AttachmentSupport = (doc.XZ_Plane, [""])
sketch15.MapMode = "FlatFace"
sketch15.AttachmentOffset = App.Placement(V(0, 0, -1 * 25.4), App.Rotation())
sketch15.addGeometry([
    Part.Circle(V(43.2, -142.2, 0), V(0, 0, 1), 2.5),
    Part.Circle(V(234.9, -142.2, 0), V(0, 0, 1), 2.5),
], False)
sketch15.addConstraint([
    Sketcher.Constraint("Equal", 0, 1),
    Sketcher.Constraint("Horizontal", 0, 3, 1, 3),
    Sketcher.Constraint("Diameter", 0, Q("0.2 in")),
    Sketcher.Constraint("DistanceX", -1, 1, 0, 3, Q("1.7 in")),
    Sketcher.Constraint("DistanceX", -1, 1, 1, 3, Q("9.25 in")),
    Sketcher.Constraint("DistanceY", 0, 3, -1, 1, Q("142.163875 mm")),
])
pad9 = doc.addObject("PartDesign::Pad", "Pad008")
body.addObject(pad9)
pad9.Profile = sketch15
pad9.Length = Q("0.2 in")
pad9.Reversed = True

# Sketch on YZ plane
sketch16 = doc.addObject("Sketcher::SketchObject", "Sketch015")
body.addObject(sketch16)
sketch16.AttachmentSupport = (doc.YZ_Plane, [""])
sketch16.MapMode = "FlatFace"
sketch16.AttachmentOffset = App.Placement(V(0, 0, 7 * 25.4), App.Rotation())
sketch16.addGeometry([
    Part.LineSegment(V(19, -203, 0), V(6, -203, 0)),
    Part.LineSegment(V(6, -203, 0), V(6, -213, 0)),
    Part.ArcOfCircle(Part.Circle(V(13, -213, 0), V(0, 0, 1), 6), math.radians(180), math.radians(360)),
    Part.LineSegment(V(19, -213, 0), V(19, -203, 0)),
], False)
sketch16.addConstraint([
    Sketcher.Constraint("Coincident", 0, 2, 1, 1),
    Sketcher.Constraint("Tangent", 1, 2, 2, 1),
    Sketcher.Constraint("Tangent", 2, 2, 3, 1),
    Sketcher.Constraint("Coincident", 3, 2, 0, 1),
    Sketcher.Constraint("Horizontal", 0),
    Sketcher.Constraint("Vertical", 1),
    Sketcher.Constraint("Vertical", 3),
    Sketcher.Constraint("Radius", 2, Q("0.25 in")),
    Sketcher.Constraint("DistanceY", 1, 2, 1, 1, Q("0.4 in")),
    Sketcher.Constraint("DistanceY", 0, 2, -1, 1, Q("8 in")),
    Sketcher.Constraint("DistanceX", -1, 1, 2, 3, Q("0.5 in")),
])
pad10 = doc.addObject("PartDesign::Pad", "Pad009")
body.addObject(pad10)
pad10.Profile = sketch16
pad10.Length = Q("0.5 in")

# Sketch on YZ plane
sketch17 = doc.addObject("Sketcher::SketchObject", "Sketch016")
body.addObject(sketch17)
sketch17.AttachmentSupport = (doc.YZ_Plane, [""])
sketch17.MapMode = "FlatFace"
sketch17.AttachmentOffset = App.Placement(V(0, 0, 3 * 25.4), App.Rotation())
sketch17.addGeometry([
    Part.LineSegment(V(19, -213, 0), V(19, -203, 0)),
    Part.LineSegment(V(19, -203, 0), V(6, -203, 0)),
    Part.LineSegment(V(6, -203, 0), V(6, -213, 0)),
    Part.ArcOfCircle(Part.Circle(V(13, -213, 0), V(0, 0, 1), 6), math.radians(180), math.radians(360)),
], False)
sketch17.addConstraint([
    Sketcher.Constraint("Coincident", 0, 2, 1, 1),
    Sketcher.Constraint("Coincident", 1, 2, 2, 1),
    Sketcher.Constraint("Tangent", 2, 2, 3, 1),
    Sketcher.Constraint("Tangent", 3, 2, 0, 1),
    Sketcher.Constraint("Vertical", 0),
    Sketcher.Constraint("Horizontal", 1),
    Sketcher.Constraint("Vertical", 2),
    Sketcher.Constraint("Radius", 3, Q("0.25 in")),
    Sketcher.Constraint("DistanceY", 0, 1, 0, 2, Q("0.4 in")),
    Sketcher.Constraint("DistanceY", 0, 2, -1, 1, Q("8 in")),
    Sketcher.Constraint("DistanceX", -1, 1, 3, 3, Q("0.5 in")),
])
pad11 = doc.addObject("PartDesign::Pad", "Pad010")
body.addObject(pad11)
pad11.Profile = sketch17
pad11.Length = Q("0.5 in")
pad11.Reversed = True

# Sketch on YZ plane
sketch18 = doc.addObject("Sketcher::SketchObject", "Sketch017")
body.addObject(sketch18)
sketch18.AttachmentSupport = (doc.YZ_Plane, [""])
sketch18.MapMode = "FlatFace"
sketch18.AttachmentOffset = App.Placement(V(0, 0, 7.5 * 25.4), App.Rotation())
sketch18.addGeometry(Part.Circle(V(12.7, -213.4, 0), V(0, 0, 1), 3.8), False)
sketch18.addConstraint([
    Sketcher.Constraint("Diameter", 0, Q("0.3 in")),
    Sketcher.Constraint("DistanceX", -1, 1, 0, 3, Q("0.5 in")),
    Sketcher.Constraint("DistanceY", 0, 3, -1, 1, Q("8.4 in")),
])
pocket7 = doc.addObject("PartDesign::Pocket", "Pocket006")
body.addObject(pocket7)
pocket7.Profile = sketch18
pocket7.Length = Q("5.91 in")
doc.recompute()

fillet = doc.addObject("PartDesign::Fillet", "Fillet")
body.addObject(fillet)
fillet.Base = (pocket7, edges_at(pocket7, [
    (184.15, 6.35, -203.2),
    (184.15, 19.05, -203.2),
    (69.85, 6.35, -203.2),
    (69.85, 19.05, -203.2),
]))
fillet.Radius = Q("0.2 in")

# Sketch on XY plane
sketch19 = doc.addObject("Sketcher::SketchObject", "Sketch018")
body.addObject(sketch19)
sketch19.AttachmentSupport = (doc.XY_Plane, [""])
sketch19.MapMode = "FlatFace"
sketch19.AttachmentOffset = App.Placement(V(0, 0, -142.163875), App.Rotation())
sketch19.addGeometry([
    Part.LineSegment(V(235, 24, 0), V(235, 37, 0)),  # 0
    Part.LineSegment(V(235, 37, 0), V(240, 37, 0)),  # 1
    Part.LineSegment(V(240, 37, 0), V(237, 30, 0)),  # 2
    Part.LineSegment(V(237, 30, 0), V(240, 24, 0)),  # 3
    Part.LineSegment(V(240, 24, 0), V(235, 24, 0)),  # 4
], False)
sketch19.addGeometry(Part.LineSegment(V(235, 24, 0), V(235, 37, 0)), True)  # axis
sketch19.addConstraint([
    Sketcher.Constraint("Coincident", 0, 2, 1, 1),
    Sketcher.Constraint("Coincident", 1, 2, 2, 1),
    Sketcher.Constraint("Coincident", 2, 2, 3, 1),
    Sketcher.Constraint("Coincident", 3, 2, 4, 1),
    Sketcher.Constraint("Coincident", 4, 2, 0, 1),
    Sketcher.Constraint("Vertical", 0),
    Sketcher.Constraint("Horizontal", 1),
    Sketcher.Constraint("Horizontal", 4),
    Sketcher.Constraint("Vertical", 5),
    Sketcher.Constraint("Coincident", 5, 1, 4, 2),
    Sketcher.Constraint("Horizontal", 1, 2, 5, 2),
    Sketcher.Constraint("Vertical", 1, 2, 3, 2),
    Sketcher.Constraint("Equal", 2, 3),
    Sketcher.Constraint("DistanceX", 1, 1, 1, 2, Q("0.2 in")),
    Sketcher.Constraint("DistanceY", 0, 1, 0, 2, Q("0.5 in")),
    Sketcher.Constraint("DistanceY", -1, 1, 2, 2, Q("1.2 in")),
    Sketcher.Constraint("DistanceX", 2, 2, 1, 2, Q("0.1 in")),
    Sketcher.Constraint("DistanceX", -1, 1, 0, 2, Q("9.25 in")),
])
revolution = doc.addObject("PartDesign::Revolution", "Revolution")
body.addObject(revolution)
revolution.Profile = sketch19
revolution.ReferenceAxis = (sketch19, ["Axis0"])
revolution.Angle = 360

# Sketch on XY plane
sketch20 = doc.addObject("Sketcher::SketchObject", "Sketch019")
body.addObject(sketch20)
sketch20.AttachmentSupport = (doc.XY_Plane, [""])
sketch20.MapMode = "FlatFace"
sketch20.AttachmentOffset = App.Placement(V(0, 0, -142.163875), App.Rotation())
sketch20.addGeometry([
    Part.LineSegment(V(43, 37, 0), V(43, 24, 0)),  # 0
    Part.LineSegment(V(43, 24, 0), V(38, 24, 0)),  # 1
    Part.LineSegment(V(38, 24, 0), V(41, 30, 0)),  # 2
    Part.LineSegment(V(41, 30, 0), V(38, 37, 0)),  # 3
    Part.LineSegment(V(38, 37, 0), V(43, 37, 0)),  # 4
], False)
sketch20.addGeometry(Part.LineSegment(V(43, 24, 0), V(43, 37, 0)), True)  # axis
sketch20.addConstraint([
    Sketcher.Constraint("Coincident", 0, 2, 1, 1),
    Sketcher.Constraint("Coincident", 1, 2, 2, 1),
    Sketcher.Constraint("Coincident", 2, 2, 3, 1),
    Sketcher.Constraint("Coincident", 3, 2, 4, 1),
    Sketcher.Constraint("Coincident", 4, 2, 0, 1),
    Sketcher.Constraint("Vertical", 0),
    Sketcher.Constraint("Horizontal", 1),
    Sketcher.Constraint("Horizontal", 4),
    Sketcher.Constraint("Vertical", 5),
    Sketcher.Constraint("Coincident", 5, 1, 0, 2),
    Sketcher.Constraint("Horizontal", 3, 2, 5, 2),
    Sketcher.Constraint("Vertical", 1, 2, 3, 2),
    Sketcher.Constraint("Equal", 2, 3),
    Sketcher.Constraint("DistanceX", 1, 2, 1, 1, Q("0.2 in")),
    Sketcher.Constraint("DistanceY", 0, 2, 0, 1, Q("0.5 in")),
    Sketcher.Constraint("DistanceX", -1, 1, 0, 2, Q("1.7 in")),
    Sketcher.Constraint("DistanceX", -1, 1, 2, 2, Q("1.6 in")),
    Sketcher.Constraint("DistanceY", -1, 1, 2, 2, Q("1.2 in")),
])
revolution2 = doc.addObject("PartDesign::Revolution", "Revolution001")
body.addObject(revolution2)
revolution2.Profile = sketch20
revolution2.ReferenceAxis = (sketch20, ["Axis0"])
revolution2.Angle = 360

# Sketch on XY plane
sketch21 = doc.addObject("Sketcher::SketchObject", "Sketch020")
body.addObject(sketch21)
sketch21.AttachmentSupport = (doc.XY_Plane, [""])
sketch21.MapMode = "FlatFace"
sketch21.AttachmentOffset = App.Placement(V(0, 0, -1.77 * 25.4), App.Rotation())
sketch21.addGeometry([
    Part.LineSegment(V(232, 30, 0), V(230, 37, 0)),  # 0
    Part.LineSegment(V(230, 37, 0), V(235, 37, 0)),  # 1
    Part.LineSegment(V(235, 37, 0), V(235, 24, 0)),  # 2
    Part.LineSegment(V(235, 24, 0), V(230, 24, 0)),  # 3
    Part.LineSegment(V(230, 24, 0), V(232, 30, 0)),  # 4
], False)
sketch21.addGeometry(Part.LineSegment(V(235, 37, 0), V(235, 24, 0)), True)  # axis
sketch21.addConstraint([
    Sketcher.Constraint("Coincident", 0, 2, 1, 1),
    Sketcher.Constraint("Coincident", 1, 2, 2, 1),
    Sketcher.Constraint("Coincident", 2, 2, 3, 1),
    Sketcher.Constraint("Coincident", 3, 2, 4, 1),
    Sketcher.Constraint("Coincident", 4, 2, 0, 1),
    Sketcher.Constraint("Horizontal", 1),
    Sketcher.Constraint("Vertical", 2),
    Sketcher.Constraint("Horizontal", 3),
    Sketcher.Constraint("Vertical", 5),
    Sketcher.Constraint("Coincident", 5, 1, 1, 2),
    Sketcher.Constraint("Horizontal", 3, 2, 5, 2),
    Sketcher.Constraint("Vertical", 0, 2, 3, 2),
    Sketcher.Constraint("Equal", 0, 4),
    Sketcher.Constraint("DistanceX", 1, 1, 1, 2, Q("0.2 in")),
    Sketcher.Constraint("DistanceY", 2, 2, 2, 1, Q("0.5 in")),
    Sketcher.Constraint("DistanceY", -1, 1, 4, 2, Q("1.2 in")),
    Sketcher.Constraint("DistanceX", 0, 2, 4, 2, Q("0.1 in")),
    Sketcher.Constraint("DistanceX", -1, 1, 0, 2, Q("9.05 in")),
])
revolution3 = doc.addObject("PartDesign::Revolution", "Revolution002")
body.addObject(revolution3)
revolution3.Profile = sketch21
revolution3.ReferenceAxis = (sketch21, ["Axis0"])
revolution3.Angle = 360

# Sketch on XY plane
sketch22 = doc.addObject("Sketcher::SketchObject", "Sketch021")
body.addObject(sketch22)
sketch22.AttachmentSupport = (doc.XY_Plane, [""])
sketch22.MapMode = "FlatFace"
sketch22.AttachmentOffset = App.Placement(V(0, 0, -1.77 * 25.4), App.Rotation())
sketch22.addGeometry([
    Part.LineSegment(V(24, 37, 0), V(24, 24, 0)),  # 0
    Part.LineSegment(V(24, 24, 0), V(19, 24, 0)),  # 1
    Part.LineSegment(V(19, 24, 0), V(22, 30, 0)),  # 2
    Part.LineSegment(V(22, 30, 0), V(19, 37, 0)),  # 3
    Part.LineSegment(V(19, 37, 0), V(24, 37, 0)),  # 4
], False)
sketch22.addGeometry(Part.LineSegment(V(24, 24, 0), V(24, 37, 0)), True)  # axis
sketch22.addConstraint([
    Sketcher.Constraint("Coincident", 0, 2, 1, 1),
    Sketcher.Constraint("Coincident", 1, 2, 2, 1),
    Sketcher.Constraint("Coincident", 2, 2, 3, 1),
    Sketcher.Constraint("Coincident", 3, 2, 4, 1),
    Sketcher.Constraint("Coincident", 4, 2, 0, 1),
    Sketcher.Constraint("Vertical", 0),
    Sketcher.Constraint("Horizontal", 1),
    Sketcher.Constraint("Horizontal", 4),
    Sketcher.Constraint("Vertical", 5),
    Sketcher.Constraint("Coincident", 5, 1, 0, 2),
    Sketcher.Constraint("Horizontal", 3, 2, 5, 2),
    Sketcher.Constraint("Vertical", 1, 2, 3, 2),
    Sketcher.Constraint("Equal", 2, 3),
    Sketcher.Constraint("DistanceX", 1, 2, 1, 1, Q("0.2 in")),
    Sketcher.Constraint("DistanceY", 0, 2, 0, 1, Q("0.5 in")),
    Sketcher.Constraint("DistanceY", -1, 1, 2, 2, Q("1.2 in")),
    Sketcher.Constraint("DistanceX", 2, 2, 0, 2, Q("0.1 in")),
    Sketcher.Constraint("DistanceX", -1, 1, 0, 2, Q("0.95 in")),
])
revolution4 = doc.addObject("PartDesign::Revolution", "Revolution003")
body.addObject(revolution4)
revolution4.Profile = sketch22
revolution4.ReferenceAxis = (sketch22, ["Axis0"])
revolution4.Angle = 360

doc.recompute()
